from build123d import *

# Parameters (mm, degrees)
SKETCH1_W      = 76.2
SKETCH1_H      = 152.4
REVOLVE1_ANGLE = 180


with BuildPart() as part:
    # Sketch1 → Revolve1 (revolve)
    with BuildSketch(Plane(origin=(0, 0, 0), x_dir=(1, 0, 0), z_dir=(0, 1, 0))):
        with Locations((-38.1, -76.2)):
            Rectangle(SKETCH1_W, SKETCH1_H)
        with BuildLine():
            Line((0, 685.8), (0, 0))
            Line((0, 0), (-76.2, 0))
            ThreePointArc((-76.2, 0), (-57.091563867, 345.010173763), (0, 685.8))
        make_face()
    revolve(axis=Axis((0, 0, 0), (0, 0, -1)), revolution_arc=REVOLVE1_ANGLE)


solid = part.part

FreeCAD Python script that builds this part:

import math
import FreeCAD as App
import Part
import Sketcher

V = App.Vector
Q = App.Units.Quantity

doc = App.newDocument("Part")
body = doc.addObject("PartDesign::Body", "Body")

# Sketch on XZ plane
sketch1 = body.newObject("Sketcher::SketchObject", "Sketch")
sketch1.AttachmentSupport = (doc.getObject("XZ_Plane"), [""])
sketch1.MapMode = "FlatFace"
sketch1.addGeometry(Part.LineSegment(V(-76, 0, 0), V(-76, 152, 0)), False)
sketch1.addGeometry(Part.LineSegment(V(-76, 152, 0), V(0, 152, 0)), False)
sketch1.addGeometry(Part.LineSegment(V(0, 152, 0), V(0, -686, 0)), False)
sketch1.addGeometry(Part.ArcOfCircle(Part.Circle(V(3048, 0, 0), V(0, 0, 1), 3124), math.radians(-180), math.radians(-167.32)), False)
sketch1.addConstraint(Sketcher.Constraint("Coincident", 0, 2, 1, 1))
sketch1.addConstraint(Sketcher.Constraint("Coincident", 1, 2, 2, 1))
sketch1.addConstraint(Sketcher.Constraint("Coincident", 2, 2, 3, 2))
sketch1.addConstraint(Sketcher.Constraint("Tangent", 3, 1, 0, 1))
sketch1.addConstraint(Sketcher.Constraint("Vertical", 0))
sketch1.addConstraint(Sketcher.Constraint("Horizontal", 1))
sketch1.addConstraint(Sketcher.Constraint("Vertical", 2))
sketch1.addConstraint(Sketcher.Constraint("PointOnObject", 3, 3, -1))
sketch1.addConstraint(Sketcher.Constraint("PointOnObject", 1, 2, -2))
sketch1.addConstraint(Sketcher.Constraint("Radius", 3, Q("123 in")))
sketch1.addConstraint(Sketcher.Constraint("DistanceX", 1, 1, 1, 2, Q("3 in")))
sketch1.addConstraint(Sketcher.Constraint("DistanceY", 0, 1, 0, 2, Q("6 in")))
revolution = body.newObject("PartDesign::Revolution", "Revolution")
revolution.Profile = sketch1
revolution.ReferenceAxis = (sketch1, ["V_Axis"])
revolution.Angle = 180
revolution.Reversed = True

doc.recompute()
